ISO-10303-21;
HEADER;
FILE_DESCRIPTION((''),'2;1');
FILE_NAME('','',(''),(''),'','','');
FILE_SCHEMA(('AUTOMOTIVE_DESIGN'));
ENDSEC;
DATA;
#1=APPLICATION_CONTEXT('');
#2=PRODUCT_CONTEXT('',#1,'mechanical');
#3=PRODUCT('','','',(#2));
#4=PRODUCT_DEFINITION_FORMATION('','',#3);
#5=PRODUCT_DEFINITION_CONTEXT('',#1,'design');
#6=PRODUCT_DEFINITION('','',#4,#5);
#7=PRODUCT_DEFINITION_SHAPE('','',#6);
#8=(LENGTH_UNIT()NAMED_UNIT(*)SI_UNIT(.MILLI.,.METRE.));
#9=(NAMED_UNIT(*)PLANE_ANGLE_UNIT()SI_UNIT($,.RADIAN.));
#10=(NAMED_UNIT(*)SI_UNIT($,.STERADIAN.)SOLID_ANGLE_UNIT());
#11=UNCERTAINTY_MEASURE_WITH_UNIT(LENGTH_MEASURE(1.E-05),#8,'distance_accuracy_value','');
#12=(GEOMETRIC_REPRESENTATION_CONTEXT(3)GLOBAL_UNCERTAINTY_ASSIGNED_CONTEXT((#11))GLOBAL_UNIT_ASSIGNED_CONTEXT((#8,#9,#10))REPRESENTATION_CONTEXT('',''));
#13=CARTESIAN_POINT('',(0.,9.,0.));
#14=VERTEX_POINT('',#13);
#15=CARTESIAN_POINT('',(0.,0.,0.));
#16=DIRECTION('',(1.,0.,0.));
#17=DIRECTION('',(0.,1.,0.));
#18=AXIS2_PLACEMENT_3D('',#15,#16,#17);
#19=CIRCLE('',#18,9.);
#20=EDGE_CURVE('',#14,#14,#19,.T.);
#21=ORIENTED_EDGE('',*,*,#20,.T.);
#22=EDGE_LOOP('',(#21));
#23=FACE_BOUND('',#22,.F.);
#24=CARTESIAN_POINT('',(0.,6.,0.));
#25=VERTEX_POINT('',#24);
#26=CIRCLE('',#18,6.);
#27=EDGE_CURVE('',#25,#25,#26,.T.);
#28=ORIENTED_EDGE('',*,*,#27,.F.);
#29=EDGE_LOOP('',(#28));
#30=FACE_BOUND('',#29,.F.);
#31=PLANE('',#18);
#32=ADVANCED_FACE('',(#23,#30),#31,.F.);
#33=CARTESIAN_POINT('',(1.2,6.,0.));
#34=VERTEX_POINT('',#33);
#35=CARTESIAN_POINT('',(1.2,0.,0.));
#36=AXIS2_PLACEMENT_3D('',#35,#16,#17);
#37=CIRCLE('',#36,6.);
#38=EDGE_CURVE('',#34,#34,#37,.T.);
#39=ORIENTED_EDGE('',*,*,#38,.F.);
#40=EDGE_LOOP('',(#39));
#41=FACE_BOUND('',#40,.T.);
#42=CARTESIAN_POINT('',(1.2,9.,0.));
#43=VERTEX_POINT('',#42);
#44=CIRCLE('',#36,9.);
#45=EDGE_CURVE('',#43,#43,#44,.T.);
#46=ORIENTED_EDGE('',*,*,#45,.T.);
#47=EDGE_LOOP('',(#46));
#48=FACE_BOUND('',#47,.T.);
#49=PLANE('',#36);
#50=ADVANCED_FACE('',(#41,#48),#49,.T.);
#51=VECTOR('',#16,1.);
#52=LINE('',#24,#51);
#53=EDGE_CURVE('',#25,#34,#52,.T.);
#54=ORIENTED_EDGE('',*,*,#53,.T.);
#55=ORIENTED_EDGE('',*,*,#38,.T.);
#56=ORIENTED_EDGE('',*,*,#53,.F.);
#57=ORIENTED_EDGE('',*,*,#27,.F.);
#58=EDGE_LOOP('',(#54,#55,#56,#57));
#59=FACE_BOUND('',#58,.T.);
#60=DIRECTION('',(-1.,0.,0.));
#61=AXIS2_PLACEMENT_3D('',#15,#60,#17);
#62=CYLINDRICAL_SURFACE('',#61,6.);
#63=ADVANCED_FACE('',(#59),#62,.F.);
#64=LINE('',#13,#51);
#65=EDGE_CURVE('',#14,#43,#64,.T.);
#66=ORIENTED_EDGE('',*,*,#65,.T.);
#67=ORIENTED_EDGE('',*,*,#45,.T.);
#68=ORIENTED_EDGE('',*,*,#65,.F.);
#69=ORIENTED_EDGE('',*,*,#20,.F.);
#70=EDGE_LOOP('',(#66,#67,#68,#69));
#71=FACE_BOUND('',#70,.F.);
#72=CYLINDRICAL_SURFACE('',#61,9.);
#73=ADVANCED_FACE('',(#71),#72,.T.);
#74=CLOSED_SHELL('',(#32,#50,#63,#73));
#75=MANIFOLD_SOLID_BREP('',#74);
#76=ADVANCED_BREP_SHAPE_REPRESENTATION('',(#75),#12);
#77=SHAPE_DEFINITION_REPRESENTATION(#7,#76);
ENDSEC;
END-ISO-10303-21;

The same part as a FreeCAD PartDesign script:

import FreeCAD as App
import Part
import Sketcher

doc = App.newDocument("Part")
body = doc.addObject("PartDesign::Body", "Body")

sketch1 = body.newObject("Sketcher::SketchObject", "Sketch")
sketch1.AttachmentSupport = (doc.getObject("YZ_Plane"), [""])
sketch1.MapMode = "FlatFace"
sketch1.addGeometry([
    Part.Circle(App.Vector(0, 0, 0), App.Vector(0, 0, 1), 9),
    Part.Circle(App.Vector(0, 0, 0), App.Vector(0, 0, 1), 6),
], False)
sketch1.addConstraint([
    Sketcher.Constraint("Coincident", 0, 3, -1, 1),
    Sketcher.Constraint("Coincident", 1, 3, -1, 1),
    Sketcher.Constraint("Diameter", 0, 18.0),
    Sketcher.Constraint("Diameter", 1, 12.0),
])
pad1 = body.newObject("PartDesign::Pad", "Pad")
pad1.Profile = sketch1
pad1.Length = 1.2

doc.recompute()
